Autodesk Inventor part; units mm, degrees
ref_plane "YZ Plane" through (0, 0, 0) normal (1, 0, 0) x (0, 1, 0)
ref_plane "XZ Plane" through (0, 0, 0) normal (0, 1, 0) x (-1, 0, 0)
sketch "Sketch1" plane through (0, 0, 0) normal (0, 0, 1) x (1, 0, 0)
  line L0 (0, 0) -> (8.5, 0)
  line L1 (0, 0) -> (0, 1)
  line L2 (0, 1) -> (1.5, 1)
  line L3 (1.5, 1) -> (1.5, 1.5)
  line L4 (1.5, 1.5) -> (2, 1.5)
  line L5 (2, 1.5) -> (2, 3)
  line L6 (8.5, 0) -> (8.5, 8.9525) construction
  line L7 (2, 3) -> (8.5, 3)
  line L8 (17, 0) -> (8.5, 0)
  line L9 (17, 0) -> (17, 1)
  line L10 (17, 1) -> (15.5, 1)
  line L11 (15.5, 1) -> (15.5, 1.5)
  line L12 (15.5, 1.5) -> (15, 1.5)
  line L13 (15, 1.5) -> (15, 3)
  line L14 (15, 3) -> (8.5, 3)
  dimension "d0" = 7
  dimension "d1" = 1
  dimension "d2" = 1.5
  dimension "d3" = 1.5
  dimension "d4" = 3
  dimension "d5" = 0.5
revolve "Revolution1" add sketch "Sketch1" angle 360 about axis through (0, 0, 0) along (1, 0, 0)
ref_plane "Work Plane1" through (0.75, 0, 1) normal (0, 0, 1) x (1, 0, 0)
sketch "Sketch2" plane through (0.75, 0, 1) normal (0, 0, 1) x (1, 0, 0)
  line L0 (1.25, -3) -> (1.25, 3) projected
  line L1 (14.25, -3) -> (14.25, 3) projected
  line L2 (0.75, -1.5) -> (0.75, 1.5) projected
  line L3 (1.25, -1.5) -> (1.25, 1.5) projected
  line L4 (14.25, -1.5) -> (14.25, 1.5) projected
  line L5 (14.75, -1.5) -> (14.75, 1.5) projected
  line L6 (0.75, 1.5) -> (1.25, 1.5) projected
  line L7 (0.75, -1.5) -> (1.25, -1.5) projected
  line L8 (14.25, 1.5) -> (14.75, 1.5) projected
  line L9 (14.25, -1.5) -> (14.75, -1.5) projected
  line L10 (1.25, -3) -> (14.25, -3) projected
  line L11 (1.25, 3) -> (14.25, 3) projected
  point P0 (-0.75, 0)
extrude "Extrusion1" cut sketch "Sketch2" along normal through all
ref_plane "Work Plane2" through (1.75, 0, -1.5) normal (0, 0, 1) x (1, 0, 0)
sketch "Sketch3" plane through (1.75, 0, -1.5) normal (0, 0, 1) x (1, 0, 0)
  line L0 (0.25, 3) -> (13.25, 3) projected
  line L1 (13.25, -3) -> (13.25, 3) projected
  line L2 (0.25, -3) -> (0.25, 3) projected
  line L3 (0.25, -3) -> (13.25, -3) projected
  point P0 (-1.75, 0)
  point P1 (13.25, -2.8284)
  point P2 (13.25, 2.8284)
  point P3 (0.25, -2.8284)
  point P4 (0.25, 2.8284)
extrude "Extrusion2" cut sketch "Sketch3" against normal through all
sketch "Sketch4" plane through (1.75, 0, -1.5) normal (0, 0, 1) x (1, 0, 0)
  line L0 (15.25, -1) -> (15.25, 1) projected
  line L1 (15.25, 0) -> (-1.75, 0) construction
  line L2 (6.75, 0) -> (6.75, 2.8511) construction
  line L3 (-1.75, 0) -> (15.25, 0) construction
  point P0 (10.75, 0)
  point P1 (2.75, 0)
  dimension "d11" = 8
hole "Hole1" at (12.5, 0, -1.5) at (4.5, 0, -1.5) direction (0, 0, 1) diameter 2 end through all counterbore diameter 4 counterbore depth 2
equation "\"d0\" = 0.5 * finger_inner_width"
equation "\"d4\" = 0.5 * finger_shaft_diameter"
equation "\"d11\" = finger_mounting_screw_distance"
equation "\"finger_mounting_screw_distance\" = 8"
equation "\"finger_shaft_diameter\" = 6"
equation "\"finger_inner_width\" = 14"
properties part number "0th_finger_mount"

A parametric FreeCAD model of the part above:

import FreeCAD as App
import Part
import Sketcher
from FreeCAD import Vector
Q = App.Units.Quantity

doc = App.newDocument("Part")
body = doc.addObject("PartDesign::Body", "Body")

sketch1 = body.newObject("Sketcher::SketchObject", "Sketch")
sketch1.AttachmentSupport = (doc.getObject("XY_Plane"), [""])
sketch1.MapMode = "FlatFace"
sketch1.addGeometry([
    Part.LineSegment(Vector(0, 1, 0), Vector(0, 0, 0)),
    Part.LineSegment(Vector(0, 0, 0), Vector(17, 0, 0)),
    Part.LineSegment(Vector(17, 0, 0), Vector(17, 1, 0)),
    Part.LineSegment(Vector(17, 1, 0), Vector(15.5, 1, 0)),
    Part.LineSegment(Vector(15.5, 1, 0), Vector(15.5, 1.5, 0)),
    Part.LineSegment(Vector(15.5, 1.5, 0), Vector(15, 1.5, 0)),
    Part.LineSegment(Vector(15, 1.5, 0), Vector(15, 3, 0)),
    Part.LineSegment(Vector(15, 3, 0), Vector(2, 3, 0)),
    Part.LineSegment(Vector(2, 3, 0), Vector(2, 1.5, 0)),
    Part.LineSegment(Vector(2, 1.5, 0), Vector(1.5, 1.5, 0)),
    Part.LineSegment(Vector(1.5, 1.5, 0), Vector(1.5, 1, 0)),
    Part.LineSegment(Vector(1.5, 1, 0), Vector(0, 1, 0)),
], False)
sketch1.addConstraint([
    Sketcher.Constraint("Coincident", 0, 2, 1, 1),
    Sketcher.Constraint("Coincident", 1, 2, 2, 1),
    Sketcher.Constraint("Coincident", 2, 2, 3, 1),
    Sketcher.Constraint("Coincident", 3, 2, 4, 1),
    Sketcher.Constraint("Coincident", 4, 2, 5, 1),
    Sketcher.Constraint("Coincident", 5, 2, 6, 1),
    Sketcher.Constraint("Coincident", 6, 2, 7, 1),
    Sketcher.Constraint("Coincident", 7, 2, 8, 1),
    Sketcher.Constraint("Coincident", 8, 2, 9, 1),
    Sketcher.Constraint("Coincident", 9, 2, 10, 1),
    Sketcher.Constraint("Coincident", 10, 2, 11, 1),
    Sketcher.Constraint("Coincident", 11, 2, 0, 1),
    Sketcher.Constraint("Vertical", 0),
    Sketcher.Constraint("Horizontal", 1),
    Sketcher.Constraint("Vertical", 2),
    Sketcher.Constraint("Horizontal", 3),
    Sketcher.Constraint("Vertical", 4),
    Sketcher.Constraint("Horizontal", 5),
    Sketcher.Constraint("Vertical", 6),
    Sketcher.Constraint("Horizontal", 7),
    Sketcher.Constraint("Vertical", 8),
    Sketcher.Constraint("Horizontal", 9),
    Sketcher.Constraint("Vertical", 10),
    Sketcher.Constraint("Horizontal", 11),
    Sketcher.Constraint("Coincident", 0, 2, -1, 1),
    Sketcher.Constraint("Horizontal", 5, 2, 8, 2),
    Sketcher.Constraint("Horizontal", 3, 2, 10, 2),
    Sketcher.Constraint("Equal", 5, 9),
    Sketcher.Constraint("Equal", 3, 11),
    Sketcher.Constraint("Equal", 9, 4),
    Sketcher.Constraint("Equal", 11, 6),
    Sketcher.Constraint("DistanceY", 0, 2, 0, 1, Q("1 mm")),
    Sketcher.Constraint("DistanceX", 3, 2, 3, 1, Q("1.5 mm")),
    Sketcher.Constraint("DistanceX", 5, 2, 5, 1, Q("0.5 mm")),
    Sketcher.Constraint("DistanceX", 1, 1, 1, 2, Q("17 mm")),
])
revolution = body.newObject("PartDesign::Revolution", "Revolution")
revolution.Profile = sketch1
revolution.ReferenceAxis = (sketch1, ["H_Axis"])
revolution.Angle = 360

sketch2 = body.newObject("Sketcher::SketchObject", "Sketch001")
sketch2.AttachmentSupport = (doc.getObject("XY_Plane"), [""])
sketch2.MapMode = "FlatFace"
sketch2.AttachmentOffset = App.Placement(Vector(0, 0, 1), App.Rotation())
sketch2.addGeometry([
    Part.LineSegment(Vector(2, -1.5, 0), Vector(2, -3, 0)),
    Part.LineSegment(Vector(2, -3, 0), Vector(15, -3, 0)),
    Part.LineSegment(Vector(15, -3, 0), Vector(15, -1.5, 0)),
    Part.LineSegment(Vector(15, -1.5, 0), Vector(15.5, -1.5, 0)),
    Part.LineSegment(Vector(15.5, -1.5, 0), Vector(15.5, 1.5, 0)),
    Part.LineSegment(Vector(15.5, 1.5, 0), Vector(15, 1.5, 0)),
    Part.LineSegment(Vector(15, 1.5, 0), Vector(15, 3, 0)),
    Part.LineSegment(Vector(15, 3, 0), Vector(2, 3, 0)),
    Part.LineSegment(Vector(2, 3, 0), Vector(2, 1.5, 0)),
    Part.LineSegment(Vector(2, 1.5, 0), Vector(1.5, 1.5, 0)),
    Part.LineSegment(Vector(1.5, 1.5, 0), Vector(1.5, -1.5, 0)),
    Part.LineSegment(Vector(1.5, -1.5, 0), Vector(2, -1.5, 0)),
], False)
sketch2.addConstraint([
    Sketcher.Constraint("Coincident", 0, 2, 1, 1),
    Sketcher.Constraint("Coincident", 1, 2, 2, 1),
    Sketcher.Constraint("Coincident", 2, 2, 3, 1),
    Sketcher.Constraint("Coincident", 3, 2, 4, 1),
    Sketcher.Constraint("Coincident", 4, 2, 5, 1),
    Sketcher.Constraint("Coincident", 5, 2, 6, 1),
    Sketcher.Constraint("Coincident", 6, 2, 7, 1),
    Sketcher.Constraint("Coincident", 7, 2, 8, 1),
    Sketcher.Constraint("Coincident", 8, 2, 9, 1),
    Sketcher.Constraint("Coincident", 9, 2, 10, 1),
    Sketcher.Constraint("Coincident", 10, 2, 11, 1),
    Sketcher.Constraint("Coincident", 11, 2, 0, 1),
    Sketcher.Constraint("Vertical", 0),
    Sketcher.Constraint("Horizontal", 1),
    Sketcher.Constraint("Vertical", 2),
    Sketcher.Constraint("Horizontal", 3),
    Sketcher.Constraint("Vertical", 4),
    Sketcher.Constraint("Horizontal", 5),
    Sketcher.Constraint("Vertical", 6),
    Sketcher.Constraint("Horizontal", 7),
    Sketcher.Constraint("Vertical", 8),
    Sketcher.Constraint("Horizontal", 9),
    Sketcher.Constraint("Vertical", 10),
    Sketcher.Constraint("Horizontal", 11),
    Sketcher.Constraint("Symmetric", 2, 2, 5, 2, -1),
    Sketcher.Constraint("Symmetric", 0, 2, 7, 2, -1),
    Sketcher.Constraint("Horizontal", 5, 2, 8, 2),
    Sketcher.Constraint("Horizontal", 3, 2, 10, 2),
    Sketcher.Constraint("Equal", 5, 9),
    Sketcher.Constraint("DistanceX", 1, 1, 1, 2, Q("13 mm")),
    Sketcher.Constraint("DistanceY", 4, 1, 4, 2, Q("3 mm")),
    Sketcher.Constraint("DistanceX", 3, 1, 3, 2, Q("0.5 mm")),
    Sketcher.Constraint("DistanceY", 0, 2, 0, 1, Q("1.5 mm")),
    Sketcher.Constraint("DistanceX", -1, 1, 0, 2, Q("2 mm")),
])
pocket1 = body.newObject("PartDesign::Pocket", "Pocket")
pocket1.Profile = sketch2
pocket1.Type = "ThroughAll"
pocket1.Reversed = True

sketch3 = body.newObject("Sketcher::SketchObject", "Sketch002")
sketch3.AttachmentSupport = (doc.getObject("XY_Plane"), [""])
sketch3.MapMode = "FlatFace"
sketch3.AttachmentOffset = App.Placement(Vector(0, 0, -1.5), App.Rotation())
sketch3.addGeometry([
    Part.LineSegment(Vector(15, 3, 0), Vector(2, 3, 0)),
    Part.LineSegment(Vector(2, 3, 0), Vector(2, -3, 0)),
    Part.LineSegment(Vector(2, -3, 0), Vector(15, -3, 0)),
    Part.LineSegment(Vector(15, -3, 0), Vector(15, 3, 0)),
], False)
sketch3.addConstraint([
    Sketcher.Constraint("Coincident", 0, 2, 1, 1),
    Sketcher.Constraint("Coincident", 1, 2, 2, 1),
    Sketcher.Constraint("Coincident", 2, 2, 3, 1),
    Sketcher.Constraint("Coincident", 3, 2, 0, 1),
    Sketcher.Constraint("Horizontal", 0),
    Sketcher.Constraint("Vertical", 1),
    Sketcher.Constraint("Horizontal", 2),
    Sketcher.Constraint("Vertical", 3),
    Sketcher.Constraint("DistanceX", 0, 2, 0, 1, Q("13 mm")),
    Sketcher.Constraint("DistanceY", 1, 2, 1, 1, Q("6 mm")),
    Sketcher.Constraint("DistanceX", -1, 1, 0, 2, Q("2 mm")),
    Sketcher.Constraint("DistanceY", -1, 1, 0, 2, Q("3 mm")),
])
pocket2 = body.newObject("PartDesign::Pocket", "Pocket001")
pocket2.Profile = sketch3
pocket2.Type = "ThroughAll"

sketch4 = body.newObject("Sketcher::SketchObject", "Sketch003")
sketch4.AttachmentSupport = (doc.getObject("XY_Plane"), [""])
sketch4.MapMode = "FlatFace"
sketch4.AttachmentOffset = App.Placement(Vector(0, 0, -1.5), App.Rotation())
sketch4.addGeometry([
    Part.Circle(Vector(12.5, 0, 0), Vector(0, 0, 1), 1),
    Part.Circle(Vector(4.5, 0, 0), Vector(0, 0, 1), 1),
], False)
sketch4.addConstraint([
    Sketcher.Constraint("Equal", 0, 1),
    Sketcher.Constraint("PointOnObject", 0, 3, -1),
    Sketcher.Constraint("PointOnObject", 1, 3, -1),
    Sketcher.Constraint("Diameter", 0, Q("2 mm")),
    Sketcher.Constraint("DistanceX", 1, 3, 0, 3, Q("8 mm")),
    Sketcher.Constraint("DistanceX", -1, 1, 0, 3, Q("12.5 mm")),
])
doc.recompute()
hole = body.newObject("PartDesign::Hole", "Hole")
hole.Profile = sketch4
hole.ThreadType = "None"
hole.Diameter = 2
hole.DepthType = "ThroughAll"
hole.HoleCutType = "Counterbore"
hole.HoleCutDiameter = 4
hole.HoleCutDepth = 2
hole.Reversed = True

doc.recompute()
